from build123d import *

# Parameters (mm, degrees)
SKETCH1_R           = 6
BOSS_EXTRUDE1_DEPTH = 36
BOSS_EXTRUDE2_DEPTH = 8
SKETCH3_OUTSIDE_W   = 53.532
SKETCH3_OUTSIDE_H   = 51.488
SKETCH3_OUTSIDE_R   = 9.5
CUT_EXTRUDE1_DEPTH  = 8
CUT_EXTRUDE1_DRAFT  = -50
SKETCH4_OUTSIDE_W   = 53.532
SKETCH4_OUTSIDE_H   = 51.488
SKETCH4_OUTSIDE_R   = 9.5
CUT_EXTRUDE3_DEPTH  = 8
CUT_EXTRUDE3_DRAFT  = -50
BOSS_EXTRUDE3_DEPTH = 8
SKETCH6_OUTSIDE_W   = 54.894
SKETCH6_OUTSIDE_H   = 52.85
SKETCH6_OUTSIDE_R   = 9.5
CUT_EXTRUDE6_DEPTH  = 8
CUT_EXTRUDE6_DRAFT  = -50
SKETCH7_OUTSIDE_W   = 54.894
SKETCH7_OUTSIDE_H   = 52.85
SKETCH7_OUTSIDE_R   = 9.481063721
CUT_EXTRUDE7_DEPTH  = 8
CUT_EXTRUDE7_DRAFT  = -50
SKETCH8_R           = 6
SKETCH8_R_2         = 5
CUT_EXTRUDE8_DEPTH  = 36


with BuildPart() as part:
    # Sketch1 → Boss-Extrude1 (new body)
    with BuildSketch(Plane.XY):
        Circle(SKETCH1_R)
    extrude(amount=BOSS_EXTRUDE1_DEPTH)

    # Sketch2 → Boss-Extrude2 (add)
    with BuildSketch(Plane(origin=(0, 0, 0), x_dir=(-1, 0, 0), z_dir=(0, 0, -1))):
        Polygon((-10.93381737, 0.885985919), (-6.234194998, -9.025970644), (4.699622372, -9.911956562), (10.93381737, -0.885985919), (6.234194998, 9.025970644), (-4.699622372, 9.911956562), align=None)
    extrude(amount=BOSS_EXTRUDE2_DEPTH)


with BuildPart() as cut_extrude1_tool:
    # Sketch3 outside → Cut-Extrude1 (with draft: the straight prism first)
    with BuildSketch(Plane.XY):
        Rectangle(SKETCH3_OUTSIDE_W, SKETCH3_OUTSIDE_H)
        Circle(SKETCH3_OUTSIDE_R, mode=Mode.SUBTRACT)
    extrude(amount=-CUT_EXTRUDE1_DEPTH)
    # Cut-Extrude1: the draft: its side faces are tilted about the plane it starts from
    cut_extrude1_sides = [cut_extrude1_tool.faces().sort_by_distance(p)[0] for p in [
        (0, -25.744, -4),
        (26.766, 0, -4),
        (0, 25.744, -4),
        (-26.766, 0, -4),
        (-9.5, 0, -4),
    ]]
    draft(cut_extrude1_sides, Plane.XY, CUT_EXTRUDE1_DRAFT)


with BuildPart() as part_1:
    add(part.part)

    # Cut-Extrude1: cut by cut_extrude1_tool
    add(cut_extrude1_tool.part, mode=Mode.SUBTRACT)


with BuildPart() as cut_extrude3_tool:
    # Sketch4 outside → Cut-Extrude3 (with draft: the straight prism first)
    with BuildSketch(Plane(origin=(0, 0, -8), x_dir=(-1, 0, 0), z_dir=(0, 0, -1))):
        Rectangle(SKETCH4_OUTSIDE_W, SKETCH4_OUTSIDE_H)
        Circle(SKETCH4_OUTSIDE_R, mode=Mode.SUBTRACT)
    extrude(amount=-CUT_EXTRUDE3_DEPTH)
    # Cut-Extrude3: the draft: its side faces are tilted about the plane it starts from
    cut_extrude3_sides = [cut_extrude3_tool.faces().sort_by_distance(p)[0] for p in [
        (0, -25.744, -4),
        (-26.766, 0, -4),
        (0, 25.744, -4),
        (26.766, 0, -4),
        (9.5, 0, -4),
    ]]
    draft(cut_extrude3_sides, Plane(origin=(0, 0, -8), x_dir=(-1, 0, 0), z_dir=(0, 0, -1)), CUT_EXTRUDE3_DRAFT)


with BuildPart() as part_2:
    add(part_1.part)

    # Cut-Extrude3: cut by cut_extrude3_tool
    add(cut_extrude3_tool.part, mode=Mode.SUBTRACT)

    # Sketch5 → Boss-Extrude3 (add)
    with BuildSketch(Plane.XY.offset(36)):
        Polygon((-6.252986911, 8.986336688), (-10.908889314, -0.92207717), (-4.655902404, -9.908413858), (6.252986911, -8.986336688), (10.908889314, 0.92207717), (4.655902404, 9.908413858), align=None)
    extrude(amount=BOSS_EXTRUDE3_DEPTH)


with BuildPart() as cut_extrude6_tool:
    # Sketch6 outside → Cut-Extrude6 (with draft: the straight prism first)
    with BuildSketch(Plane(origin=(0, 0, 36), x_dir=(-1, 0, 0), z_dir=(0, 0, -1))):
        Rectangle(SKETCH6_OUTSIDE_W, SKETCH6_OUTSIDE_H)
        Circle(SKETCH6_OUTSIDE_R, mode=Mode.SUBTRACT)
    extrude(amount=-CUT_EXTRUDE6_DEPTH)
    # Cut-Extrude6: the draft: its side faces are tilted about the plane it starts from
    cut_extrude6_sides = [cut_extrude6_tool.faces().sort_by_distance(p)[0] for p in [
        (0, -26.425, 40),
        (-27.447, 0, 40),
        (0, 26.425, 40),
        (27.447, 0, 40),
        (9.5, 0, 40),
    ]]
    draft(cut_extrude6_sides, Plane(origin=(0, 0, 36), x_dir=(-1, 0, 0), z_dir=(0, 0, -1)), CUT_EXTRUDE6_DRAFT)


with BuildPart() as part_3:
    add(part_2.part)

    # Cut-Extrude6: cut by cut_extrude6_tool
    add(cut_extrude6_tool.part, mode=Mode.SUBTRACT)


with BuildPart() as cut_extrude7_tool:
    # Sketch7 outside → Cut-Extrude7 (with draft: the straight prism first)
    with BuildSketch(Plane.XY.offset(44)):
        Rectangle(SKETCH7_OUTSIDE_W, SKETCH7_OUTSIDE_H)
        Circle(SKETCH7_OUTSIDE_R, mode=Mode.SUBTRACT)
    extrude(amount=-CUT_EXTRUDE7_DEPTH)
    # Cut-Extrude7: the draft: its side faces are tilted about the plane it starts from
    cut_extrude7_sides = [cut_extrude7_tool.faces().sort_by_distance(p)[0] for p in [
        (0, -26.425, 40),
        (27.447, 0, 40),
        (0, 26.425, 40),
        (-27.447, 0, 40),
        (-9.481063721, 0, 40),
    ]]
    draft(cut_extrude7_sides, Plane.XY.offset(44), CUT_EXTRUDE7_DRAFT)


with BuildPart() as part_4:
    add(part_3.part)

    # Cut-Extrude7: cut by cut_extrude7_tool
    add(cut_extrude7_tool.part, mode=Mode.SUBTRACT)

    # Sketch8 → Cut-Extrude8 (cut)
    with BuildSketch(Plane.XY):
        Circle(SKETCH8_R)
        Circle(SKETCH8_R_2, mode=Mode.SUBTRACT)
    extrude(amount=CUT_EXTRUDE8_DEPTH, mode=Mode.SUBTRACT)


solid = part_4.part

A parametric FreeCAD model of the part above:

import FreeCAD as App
import Part
import Sketcher
from FreeCAD import Vector
Q = App.Units.Quantity


def faces_at(feature, points):
    """Names of the faces that lie closest to the given points."""
    faces = feature.Shape.Faces
    near = lambda p: min(range(len(faces)), key=lambda i: faces[i].distToShape(Part.Vertex(*p))[0])
    return sorted({f"Face{near(p) + 1}" for p in points})


def add_polygon(sketch, points):
    """Adds a closed chain of lines whose ends are joined by coincident constraints."""
    first, n = sketch.GeometryCount, len(points)
    for a, b in zip(points, points[1:] + points[:1]):
        sketch.addGeometry(Part.LineSegment(App.Vector(*a, 0), App.Vector(*b, 0)), False)
    for i in range(n):
        sketch.addConstraint(Sketcher.Constraint("Coincident", first + i, 2, first + (i + 1) % n, 1))

doc = App.newDocument("Part")
params = doc.addObject("Spreadsheet::Sheet", "Params")
for row, (alias, value) in enumerate([
    ("sketch1_diameter", "12 mm"),
    ("pad1_length", "36 mm"),
    ("pad2_length", "8 mm"),
    ("sketch3_diameter", "19 mm"),
    ("pad3_length", "8 mm"),
    ("draft_angle", "50 deg"),
    ("sketch4_diameter", "19 mm"),
    ("pad4_length", "8 mm"),
    ("draft2_angle", "50 deg"),
    ("pad5_length", "8 mm"),
    ("sketch6_diameter", "19 mm"),
    ("sketch6_height", "52.85 mm"),
    ("pad6_length", "8 mm"),
    ("draft3_angle", "50 deg"),
    ("sketch7_height", "52.85 mm"),
    ("pad7_length", "8 mm"),
    ("draft4_angle", "50 deg"),
    ("sketch8_diameter", "12 mm"),
    ("sketch8_diameter2", "10 mm"),
    ("pocket1_length", "36 mm"),
], start=1):
    params.set(f"A{row}", alias)
    params.set(f"B{row}", "=" + value)
    params.setAlias(f"B{row}", alias)

body = doc.addObject("PartDesign::Body", "Body")

sketch1 = doc.addObject("Sketcher::SketchObject", "Sketch")
body.addObject(sketch1)
sketch1.AttachmentSupport = (doc.XY_Plane, [""])
sketch1.MapMode = "FlatFace"
sketch1.addGeometry(Part.Circle(Vector(0, 0, 0), Vector(0, 0, 1), 6), False)
sketch1.addConstraint([
    Sketcher.Constraint("Coincident", 0, 3, -1, 1),
    Sketcher.Constraint("Diameter", 0, Q("12 mm")),
])
sketch1.setExpression("Constraints[1]", "Params.sketch1_diameter")
pad1 = doc.addObject("PartDesign::Pad", "Pad")
body.addObject(pad1)
pad1.Profile = sketch1
pad1.setExpression("Length", "Params.pad1_length")

sketch2 = doc.addObject("Sketcher::SketchObject", "Sketch001")
body.addObject(sketch2)
sketch2.AttachmentSupport = (doc.XY_Plane, [""])
sketch2.MapMode = "FlatFace"
add_polygon(sketch2, [(10.933817, 0.885986), (6.234195, -9.025971), (-4.699622, -9.911957), (-10.933817, -0.885986), (-6.234195, 9.025971), (4.699622, 9.911957)])
sketch2.addConstraint([
    Sketcher.Constraint("Symmetric", 0, 2, 3, 2, -1, 1),
    Sketcher.Constraint("Symmetric", 1, 2, 4, 2, -1, 1),
    Sketcher.Constraint("Symmetric", 2, 2, 5, 2, -1, 1),
    Sketcher.Constraint("Equal", 0, 1),
    Sketcher.Constraint("Equal", 1, 2),
    Sketcher.Constraint("DistanceY", 0, 2, -1, 1, Q("9.025971 mm")),
    Sketcher.Constraint("DistanceY", 1, 2, 2, 2, Q("9.025971 mm")),
    Sketcher.Constraint("DistanceX", 3, 2, 0, 2, Q("12.46839 mm")),
    Sketcher.Constraint("DistanceX", 2, 2, 4, 2, Q("15.63344 mm")),
])
pad2 = doc.addObject("PartDesign::Pad", "Pad001")
body.addObject(pad2)
pad2.Profile = sketch2
pad2.setExpression("Length", "Params.pad2_length")
pad2.Reversed = True
body2 = doc.addObject("PartDesign::Body", "Body001")

sketch3 = doc.addObject("Sketcher::SketchObject", "Sketch002")
body2.addObject(sketch3)
sketch3.AttachmentSupport = (doc.getObject("XY_Plane001"), [""])
sketch3.MapMode = "FlatFace"
add_polygon(sketch3, [(-26.766, 25.744), (-26.766, -25.744), (26.766, -25.744), (26.766, 25.744)])
sketch3.addGeometry(Part.Circle(Vector(0, 0, 0), Vector(0, 0, 1), 9.5), False)
sketch3.addConstraint([
    Sketcher.Constraint("Vertical", 0),
    Sketcher.Constraint("Horizontal", 1),
    Sketcher.Constraint("Vertical", 2),
    Sketcher.Constraint("Horizontal", 3),
    Sketcher.Constraint("Coincident", 4, 3, -1, 1),
    Sketcher.Constraint("Symmetric", 0, 2, 2, 2, -1, 1),
    Sketcher.Constraint("Diameter", 4, Q("19 mm")),
    Sketcher.Constraint("DistanceX", 1, 1, 1, 2, Q("53.532 mm")),
    Sketcher.Constraint("DistanceY", 0, 2, 0, 1, Q("51.488 mm")),
])
sketch3.setExpression("Constraints[10]", "Params.sketch3_diameter")
pad3 = doc.addObject("PartDesign::Pad", "Pad002")
body2.addObject(pad3)
pad3.Profile = sketch3
pad3.setExpression("Length", "Params.pad3_length")
pad3.Reversed = True
doc.recompute()

draft = doc.addObject("PartDesign::Draft", "Draft")
body2.addObject(draft)
draft.Base = (pad3, faces_at(pad3, [
    (0, -25.744, -4),
    (26.766, 0, -4),
    (0, 25.744, -4),
    (-26.766, 0, -4),
    (-9.5, 0, -4),
]))
draft.NeutralPlane = (doc.getObject("XY_Plane001"), [""])
draft.setExpression("Angle", "Params.draft_angle")
draft.Reversed = True
doc.recompute()

boolean = doc.addObject("PartDesign::Boolean", "Boolean")
body.addObject(boolean)
boolean.Type = "Cut"
boolean.addObjects([body2])
body3 = doc.addObject("PartDesign::Body", "Body002")

sketch4 = doc.addObject("Sketcher::SketchObject", "Sketch003")
body3.addObject(sketch4)
sketch4.AttachmentSupport = (doc.getObject("XY_Plane002"), [""])
sketch4.MapMode = "FlatFace"
sketch4.AttachmentOffset = App.Placement(Vector(0, 0, -8), App.Rotation())
add_polygon(sketch4, [(26.766, 25.744), (26.766, -25.744), (-26.766, -25.744), (-26.766, 25.744)])
sketch4.addGeometry(Part.Circle(Vector(0, 0, 0), Vector(0, 0, 1), 9.5), False)
sketch4.addConstraint([
    Sketcher.Constraint("Vertical", 0),
    Sketcher.Constraint("Horizontal", 1),
    Sketcher.Constraint("Vertical", 2),
    Sketcher.Constraint("Horizontal", 3),
    Sketcher.Constraint("Coincident", 4, 3, -1, 1),
    Sketcher.Constraint("Symmetric", 0, 2, 2, 2, -1, 1),
    Sketcher.Constraint("Diameter", 4, Q("19 mm")),
    Sketcher.Constraint("DistanceX", 1, 2, 1, 1, Q("53.532 mm")),
    Sketcher.Constraint("DistanceY", 0, 2, 0, 1, Q("51.488 mm")),
])
sketch4.setExpression("Constraints[10]", "Params.sketch4_diameter")
pad4 = doc.addObject("PartDesign::Pad", "Pad003")
body3.addObject(pad4)
pad4.Profile = sketch4
pad4.setExpression("Length", "Params.pad4_length")
doc.recompute()

datumplane = doc.addObject("PartDesign::Plane", "DatumPlane")
body3.addObject(datumplane)
datumplane.AttachmentSupport = (doc.getObject("XY_Plane002"), [""])
datumplane.MapMode = "FlatFace"
datumplane.AttachmentOffset = App.Placement(Vector(0, 0, -8), App.Rotation())
draft2 = doc.addObject("PartDesign::Draft", "Draft001")
body3.addObject(draft2)
draft2.Base = (pad4, faces_at(pad4, [
    (0, -25.744, -4),
    (-26.766, 0, -4),
    (0, 25.744, -4),
    (26.766, 0, -4),
    (9.5, 0, -4),
]))
draft2.NeutralPlane = (datumplane, [""])
draft2.setExpression("Angle", "Params.draft2_angle")
draft2.Reversed = False
doc.recompute()

boolean2 = doc.addObject("PartDesign::Boolean", "Boolean001")
body.addObject(boolean2)
boolean2.Type = "Cut"
boolean2.addObjects([body3])

sketch5 = doc.addObject("Sketcher::SketchObject", "Sketch004")
body.addObject(sketch5)
sketch5.AttachmentSupport = (doc.XY_Plane, [""])
sketch5.MapMode = "FlatFace"
sketch5.AttachmentOffset = App.Placement(Vector(0, 0, 36), App.Rotation())
add_polygon(sketch5, [(-6.252987, 8.986337), (-10.908889, -0.922077), (-4.655902, -9.908414), (6.252987, -8.986337), (10.908889, 0.922077), (4.655902, 9.908414)])
sketch5.addConstraint([
    Sketcher.Constraint("Symmetric", 0, 2, 3, 2, -1, 1),
    Sketcher.Constraint("Symmetric", 1, 2, 4, 2, -1, 1),
    Sketcher.Constraint("Symmetric", 2, 2, 5, 2, -1, 1),
    Sketcher.Constraint("Equal", 0, 1),
    Sketcher.Constraint("Equal", 1, 2),
    Sketcher.Constraint("Distance", 0, Q("10.947789 mm")),
    Sketcher.Constraint("DistanceX", 0, 2, -1, 1, Q("10.908889 mm")),
    Sketcher.Constraint("DistanceX", 1, 2, 2, 2, Q("10.908889 mm")),
    Sketcher.Constraint("DistanceY", 2, 2, 0, 2, Q("8.06426 mm")),
])
pad5 = doc.addObject("PartDesign::Pad", "Pad004")
body.addObject(pad5)
pad5.Profile = sketch5
pad5.setExpression("Length", "Params.pad5_length")
body4 = doc.addObject("PartDesign::Body", "Body003")

sketch6 = doc.addObject("Sketcher::SketchObject", "Sketch005")
body4.addObject(sketch6)
sketch6.AttachmentSupport = (doc.getObject("XY_Plane003"), [""])
sketch6.MapMode = "FlatFace"
sketch6.AttachmentOffset = App.Placement(Vector(0, 0, 36), App.Rotation())
add_polygon(sketch6, [(27.447, 26.425), (27.447, -26.425), (-27.447, -26.425), (-27.447, 26.425)])
sketch6.addGeometry(Part.Circle(Vector(0, 0, 0), Vector(0, 0, 1), 9.5), False)
sketch6.addConstraint([
    Sketcher.Constraint("Vertical", 0),
    Sketcher.Constraint("Horizontal", 1),
    Sketcher.Constraint("Vertical", 2),
    Sketcher.Constraint("Horizontal", 3),
    Sketcher.Constraint("Coincident", 4, 3, -1, 1),
    Sketcher.Constraint("Symmetric", 0, 2, 2, 2, -1, 1),
    Sketcher.Constraint("Diameter", 4, Q("19 mm")),
    Sketcher.Constraint("DistanceY", 0, 2, 0, 1, Q("52.85 mm")),
    Sketcher.Constraint("DistanceX", 1, 2, 1, 1, Q("54.894 mm")),
])
sketch6.setExpression("Constraints[10]", "Params.sketch6_diameter")
sketch6.setExpression("Constraints[11]", "Params.sketch6_height")
pad6 = doc.addObject("PartDesign::Pad", "Pad005")
body4.addObject(pad6)
pad6.Profile = sketch6
pad6.setExpression("Length", "Params.pad6_length")
doc.recompute()

datumplane2 = doc.addObject("PartDesign::Plane", "DatumPlane001")
body4.addObject(datumplane2)
datumplane2.AttachmentSupport = (doc.getObject("XY_Plane003"), [""])
datumplane2.MapMode = "FlatFace"
datumplane2.AttachmentOffset = App.Placement(Vector(0, 0, 36), App.Rotation())
draft3 = doc.addObject("PartDesign::Draft", "Draft002")
body4.addObject(draft3)
draft3.Base = (pad6, faces_at(pad6, [
    (0, -26.425, 40),
    (-27.447, 0, 40),
    (0, 26.425, 40),
    (27.447, 0, 40),
    (9.5, 0, 40),
]))
draft3.NeutralPlane = (datumplane2, [""])
draft3.setExpression("Angle", "Params.draft3_angle")
draft3.Reversed = False
doc.recompute()

boolean3 = doc.addObject("PartDesign::Boolean", "Boolean002")
body.addObject(boolean3)
boolean3.Type = "Cut"
boolean3.addObjects([body4])
body5 = doc.addObject("PartDesign::Body", "Body004")

sketch7 = doc.addObject("Sketcher::SketchObject", "Sketch006")
body5.addObject(sketch7)
sketch7.AttachmentSupport = (doc.getObject("XY_Plane004"), [""])
sketch7.MapMode = "FlatFace"
sketch7.AttachmentOffset = App.Placement(Vector(0, 0, 44), App.Rotation())
add_polygon(sketch7, [(-27.447, 26.425), (-27.447, -26.425), (27.447, -26.425), (27.447, 26.425)])
sketch7.addGeometry(Part.Circle(Vector(0, 0, 0), Vector(0, 0, 1), 9.481064), False)
sketch7.addConstraint([
    Sketcher.Constraint("Vertical", 0),
    Sketcher.Constraint("Horizontal", 1),
    Sketcher.Constraint("Vertical", 2),
    Sketcher.Constraint("Horizontal", 3),
    Sketcher.Constraint("Coincident", 4, 3, -1, 1),
    Sketcher.Constraint("Symmetric", 0, 2, 2, 2, -1, 1),
    Sketcher.Constraint("DistanceY", 0, 2, 0, 1, Q("52.85 mm")),
    Sketcher.Constraint("DistanceX", 1, 1, 1, 2, Q("54.894 mm")),
    Sketcher.Constraint("Diameter", 4, Q("18.962127 mm")),
])
sketch7.setExpression("Constraints[10]", "Params.sketch7_height")
pad7 = doc.addObject("PartDesign::Pad", "Pad006")
body5.addObject(pad7)
pad7.Profile = sketch7
pad7.setExpression("Length", "Params.pad7_length")
pad7.Reversed = True
doc.recompute()

datumplane3 = doc.addObject("PartDesign::Plane", "DatumPlane002")
body5.addObject(datumplane3)
datumplane3.AttachmentSupport = (doc.getObject("XY_Plane004"), [""])
datumplane3.MapMode = "FlatFace"
datumplane3.AttachmentOffset = App.Placement(Vector(0, 0, 44), App.Rotation())
draft4 = doc.addObject("PartDesign::Draft", "Draft003")
body5.addObject(draft4)
draft4.Base = (pad7, faces_at(pad7, [
    (0, -26.425, 40),
    (27.447, 0, 40),
    (0, 26.425, 40),
    (-27.447, 0, 40),
    (-9.481, 0, 40),
]))
draft4.NeutralPlane = (datumplane3, [""])
draft4.setExpression("Angle", "Params.draft4_angle")
draft4.Reversed = True
doc.recompute()

boolean4 = doc.addObject("PartDesign::Boolean", "Boolean003")
body.addObject(boolean4)
boolean4.Type = "Cut"
boolean4.addObjects([body5])

sketch8 = doc.addObject("Sketcher::SketchObject", "Sketch007")
body.addObject(sketch8)
sketch8.AttachmentSupport = (doc.XY_Plane, [""])
sketch8.MapMode = "FlatFace"
sketch8.addGeometry([
    Part.Circle(Vector(0, 0, 0), Vector(0, 0, 1), 6),
    Part.Circle(Vector(0, 0, 0), Vector(0, 0, 1), 5),
], False)
sketch8.addConstraint([
    Sketcher.Constraint("Coincident", 0, 3, -1, 1),
    Sketcher.Constraint("Coincident", 1, 3, -1, 1),
    Sketcher.Constraint("Diameter", 0, Q("12 mm")),
    Sketcher.Constraint("Diameter", 1, Q("10 mm")),
])
sketch8.setExpression("Constraints[2]", "Params.sketch8_diameter")
sketch8.setExpression("Constraints[3]", "Params.sketch8_diameter2")
pocket1 = doc.addObject("PartDesign::Pocket", "Pocket")
body.addObject(pocket1)
pocket1.Profile = sketch8
pocket1.setExpression("Length", "Params.pocket1_length")
pocket1.Reversed = True

doc.recompute()
